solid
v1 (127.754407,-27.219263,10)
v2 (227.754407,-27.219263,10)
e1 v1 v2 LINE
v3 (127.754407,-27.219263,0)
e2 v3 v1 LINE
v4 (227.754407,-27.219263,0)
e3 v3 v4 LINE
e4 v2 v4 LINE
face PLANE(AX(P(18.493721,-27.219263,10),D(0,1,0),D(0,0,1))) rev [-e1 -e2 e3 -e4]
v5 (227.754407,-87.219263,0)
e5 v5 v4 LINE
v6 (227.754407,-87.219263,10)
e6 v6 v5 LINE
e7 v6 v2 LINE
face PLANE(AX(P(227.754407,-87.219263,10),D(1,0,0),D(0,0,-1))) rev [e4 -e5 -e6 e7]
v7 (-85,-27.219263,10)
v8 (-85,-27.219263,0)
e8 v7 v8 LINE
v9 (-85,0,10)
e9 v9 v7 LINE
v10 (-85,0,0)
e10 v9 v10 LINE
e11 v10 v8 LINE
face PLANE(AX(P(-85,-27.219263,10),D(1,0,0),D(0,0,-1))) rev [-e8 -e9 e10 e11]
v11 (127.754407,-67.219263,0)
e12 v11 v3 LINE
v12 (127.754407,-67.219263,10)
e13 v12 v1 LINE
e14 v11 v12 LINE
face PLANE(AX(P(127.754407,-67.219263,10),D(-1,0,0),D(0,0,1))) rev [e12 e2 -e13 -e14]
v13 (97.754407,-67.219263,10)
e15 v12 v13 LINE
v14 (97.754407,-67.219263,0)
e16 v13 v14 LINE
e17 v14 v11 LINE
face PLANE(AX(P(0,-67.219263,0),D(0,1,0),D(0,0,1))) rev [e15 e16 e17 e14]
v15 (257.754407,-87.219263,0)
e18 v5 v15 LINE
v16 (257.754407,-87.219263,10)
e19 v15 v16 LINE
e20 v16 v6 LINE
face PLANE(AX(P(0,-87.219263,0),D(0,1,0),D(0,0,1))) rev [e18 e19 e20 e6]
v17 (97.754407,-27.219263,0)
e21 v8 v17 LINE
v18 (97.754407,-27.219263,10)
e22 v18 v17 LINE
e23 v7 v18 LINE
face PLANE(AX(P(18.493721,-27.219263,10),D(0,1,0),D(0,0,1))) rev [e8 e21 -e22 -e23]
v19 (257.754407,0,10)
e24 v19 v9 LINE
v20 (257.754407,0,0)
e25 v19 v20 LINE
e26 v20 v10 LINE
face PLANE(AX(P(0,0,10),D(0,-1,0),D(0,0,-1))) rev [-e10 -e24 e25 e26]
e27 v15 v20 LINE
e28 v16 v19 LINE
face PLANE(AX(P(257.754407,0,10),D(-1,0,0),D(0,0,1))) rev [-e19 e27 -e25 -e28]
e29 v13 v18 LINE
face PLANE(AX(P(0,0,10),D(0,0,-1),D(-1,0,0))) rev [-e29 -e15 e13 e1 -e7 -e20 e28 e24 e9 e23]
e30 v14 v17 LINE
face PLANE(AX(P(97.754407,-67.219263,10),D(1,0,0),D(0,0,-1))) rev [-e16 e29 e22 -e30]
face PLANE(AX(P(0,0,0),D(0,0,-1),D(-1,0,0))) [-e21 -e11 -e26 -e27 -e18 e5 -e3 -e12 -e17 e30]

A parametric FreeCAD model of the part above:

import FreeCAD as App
import Part
import Sketcher
from FreeCAD import Vector
Q = App.Units.Quantity


def add_polygon(sketch, points):
    """Adds a closed chain of lines whose ends are joined by coincident constraints."""
    first, n = sketch.GeometryCount, len(points)
    for a, b in zip(points, points[1:] + points[:1]):
        sketch.addGeometry(Part.LineSegment(App.Vector(*a, 0), App.Vector(*b, 0)), False)
    for i in range(n):
        sketch.addConstraint(Sketcher.Constraint("Coincident", first + i, 2, first + (i + 1) % n, 1))

doc = App.newDocument("Part")
body = doc.addObject("PartDesign::Body", "Body")

# Sketch on XY plane
sketch1 = body.newObject("Sketcher::SketchObject", "Sketch")
sketch1.AttachmentSupport = (doc.getObject("XY_Plane"), [""])
sketch1.MapMode = "FlatFace"
add_polygon(sketch1, [(258, 0), (-85, 0), (-85, -27), (258, -27)])  # lines 0-3
sketch1.addConstraint(Sketcher.Constraint("Horizontal", 0))
sketch1.addConstraint(Sketcher.Constraint("Vertical", 1))
sketch1.addConstraint(Sketcher.Constraint("Horizontal", 2))
sketch1.addConstraint(Sketcher.Constraint("Vertical", 3))
sketch1.addConstraint(Sketcher.Constraint("PointOnObject", 0, 2, -1))
sketch1.addConstraint(Sketcher.Constraint("DistanceX", 0, 2, -1, 1, Q("85 mm")))
sketch1.addConstraint(Sketcher.Constraint("DistanceX", 0, 2, 0, 1, Q("342.754407 mm")))
sketch1.addConstraint(Sketcher.Constraint("DistanceY", 1, 2, 1, 1, Q("27.219263 mm")))
pad1 = body.newObject("PartDesign::Pad", "Pad")
pad1.Profile = sketch1
pad1.Length = 10

# Sketch on XZ plane
sketch2 = body.newObject("Sketcher::SketchObject", "Sketch001")
sketch2.AttachmentSupport = (doc.getObject("XZ_Plane"), [""])
sketch2.MapMode = "FlatFace"
sketch2.AttachmentOffset = App.Placement(Vector(0, 0, 27.219263), App.Rotation())
add_polygon(sketch2, [(258, 0), (258, 10), (228, 10), (228, 0)])  # lines 0-3
sketch2.addConstraint(Sketcher.Constraint("Vertical", 0))
sketch2.addConstraint(Sketcher.Constraint("Horizontal", 1))
sketch2.addConstraint(Sketcher.Constraint("Vertical", 2))
sketch2.addConstraint(Sketcher.Constraint("Horizontal", 3))
sketch2.addConstraint(Sketcher.Constraint("PointOnObject", 2, 2, -1))
sketch2.addConstraint(Sketcher.Constraint("DistanceX", 1, 2, 1, 1, Q("30 mm")))
sketch2.addConstraint(Sketcher.Constraint("DistanceY", 0, 1, 0, 2, Q("10 mm")))
sketch2.addConstraint(Sketcher.Constraint("DistanceX", -1, 1, 0, 2, Q("257.754407 mm")))
pad2 = body.newObject("PartDesign::Pad", "Pad001")
pad2.Profile = sketch2
pad2.Length = 60

# Sketch on XZ plane
sketch3 = body.newObject("Sketcher::SketchObject", "Sketch002")
sketch3.AttachmentSupport = (doc.getObject("XZ_Plane"), [""])
sketch3.MapMode = "FlatFace"
sketch3.AttachmentOffset = App.Placement(Vector(0, 0, 27.219263), App.Rotation())
add_polygon(sketch3, [(128, 0), (128, 10), (98, 10), (98, 0)])  # lines 0-3
sketch3.addConstraint(Sketcher.Constraint("Vertical", 0))
sketch3.addConstraint(Sketcher.Constraint("Horizontal", 1))
sketch3.addConstraint(Sketcher.Constraint("Vertical", 2))
sketch3.addConstraint(Sketcher.Constraint("Horizontal", 3))
sketch3.addConstraint(Sketcher.Constraint("PointOnObject", 2, 2, -1))
sketch3.addConstraint(Sketcher.Constraint("DistanceX", 1, 2, 1, 1, Q("30 mm")))
sketch3.addConstraint(Sketcher.Constraint("DistanceY", 0, 1, 0, 2, Q("10 mm")))
sketch3.addConstraint(Sketcher.Constraint("DistanceX", -1, 1, 0, 2, Q("127.754407 mm")))
pad3 = body.newObject("PartDesign::Pad", "Pad002")
pad3.Profile = sketch3
pad3.Length = 40

doc.recompute()
